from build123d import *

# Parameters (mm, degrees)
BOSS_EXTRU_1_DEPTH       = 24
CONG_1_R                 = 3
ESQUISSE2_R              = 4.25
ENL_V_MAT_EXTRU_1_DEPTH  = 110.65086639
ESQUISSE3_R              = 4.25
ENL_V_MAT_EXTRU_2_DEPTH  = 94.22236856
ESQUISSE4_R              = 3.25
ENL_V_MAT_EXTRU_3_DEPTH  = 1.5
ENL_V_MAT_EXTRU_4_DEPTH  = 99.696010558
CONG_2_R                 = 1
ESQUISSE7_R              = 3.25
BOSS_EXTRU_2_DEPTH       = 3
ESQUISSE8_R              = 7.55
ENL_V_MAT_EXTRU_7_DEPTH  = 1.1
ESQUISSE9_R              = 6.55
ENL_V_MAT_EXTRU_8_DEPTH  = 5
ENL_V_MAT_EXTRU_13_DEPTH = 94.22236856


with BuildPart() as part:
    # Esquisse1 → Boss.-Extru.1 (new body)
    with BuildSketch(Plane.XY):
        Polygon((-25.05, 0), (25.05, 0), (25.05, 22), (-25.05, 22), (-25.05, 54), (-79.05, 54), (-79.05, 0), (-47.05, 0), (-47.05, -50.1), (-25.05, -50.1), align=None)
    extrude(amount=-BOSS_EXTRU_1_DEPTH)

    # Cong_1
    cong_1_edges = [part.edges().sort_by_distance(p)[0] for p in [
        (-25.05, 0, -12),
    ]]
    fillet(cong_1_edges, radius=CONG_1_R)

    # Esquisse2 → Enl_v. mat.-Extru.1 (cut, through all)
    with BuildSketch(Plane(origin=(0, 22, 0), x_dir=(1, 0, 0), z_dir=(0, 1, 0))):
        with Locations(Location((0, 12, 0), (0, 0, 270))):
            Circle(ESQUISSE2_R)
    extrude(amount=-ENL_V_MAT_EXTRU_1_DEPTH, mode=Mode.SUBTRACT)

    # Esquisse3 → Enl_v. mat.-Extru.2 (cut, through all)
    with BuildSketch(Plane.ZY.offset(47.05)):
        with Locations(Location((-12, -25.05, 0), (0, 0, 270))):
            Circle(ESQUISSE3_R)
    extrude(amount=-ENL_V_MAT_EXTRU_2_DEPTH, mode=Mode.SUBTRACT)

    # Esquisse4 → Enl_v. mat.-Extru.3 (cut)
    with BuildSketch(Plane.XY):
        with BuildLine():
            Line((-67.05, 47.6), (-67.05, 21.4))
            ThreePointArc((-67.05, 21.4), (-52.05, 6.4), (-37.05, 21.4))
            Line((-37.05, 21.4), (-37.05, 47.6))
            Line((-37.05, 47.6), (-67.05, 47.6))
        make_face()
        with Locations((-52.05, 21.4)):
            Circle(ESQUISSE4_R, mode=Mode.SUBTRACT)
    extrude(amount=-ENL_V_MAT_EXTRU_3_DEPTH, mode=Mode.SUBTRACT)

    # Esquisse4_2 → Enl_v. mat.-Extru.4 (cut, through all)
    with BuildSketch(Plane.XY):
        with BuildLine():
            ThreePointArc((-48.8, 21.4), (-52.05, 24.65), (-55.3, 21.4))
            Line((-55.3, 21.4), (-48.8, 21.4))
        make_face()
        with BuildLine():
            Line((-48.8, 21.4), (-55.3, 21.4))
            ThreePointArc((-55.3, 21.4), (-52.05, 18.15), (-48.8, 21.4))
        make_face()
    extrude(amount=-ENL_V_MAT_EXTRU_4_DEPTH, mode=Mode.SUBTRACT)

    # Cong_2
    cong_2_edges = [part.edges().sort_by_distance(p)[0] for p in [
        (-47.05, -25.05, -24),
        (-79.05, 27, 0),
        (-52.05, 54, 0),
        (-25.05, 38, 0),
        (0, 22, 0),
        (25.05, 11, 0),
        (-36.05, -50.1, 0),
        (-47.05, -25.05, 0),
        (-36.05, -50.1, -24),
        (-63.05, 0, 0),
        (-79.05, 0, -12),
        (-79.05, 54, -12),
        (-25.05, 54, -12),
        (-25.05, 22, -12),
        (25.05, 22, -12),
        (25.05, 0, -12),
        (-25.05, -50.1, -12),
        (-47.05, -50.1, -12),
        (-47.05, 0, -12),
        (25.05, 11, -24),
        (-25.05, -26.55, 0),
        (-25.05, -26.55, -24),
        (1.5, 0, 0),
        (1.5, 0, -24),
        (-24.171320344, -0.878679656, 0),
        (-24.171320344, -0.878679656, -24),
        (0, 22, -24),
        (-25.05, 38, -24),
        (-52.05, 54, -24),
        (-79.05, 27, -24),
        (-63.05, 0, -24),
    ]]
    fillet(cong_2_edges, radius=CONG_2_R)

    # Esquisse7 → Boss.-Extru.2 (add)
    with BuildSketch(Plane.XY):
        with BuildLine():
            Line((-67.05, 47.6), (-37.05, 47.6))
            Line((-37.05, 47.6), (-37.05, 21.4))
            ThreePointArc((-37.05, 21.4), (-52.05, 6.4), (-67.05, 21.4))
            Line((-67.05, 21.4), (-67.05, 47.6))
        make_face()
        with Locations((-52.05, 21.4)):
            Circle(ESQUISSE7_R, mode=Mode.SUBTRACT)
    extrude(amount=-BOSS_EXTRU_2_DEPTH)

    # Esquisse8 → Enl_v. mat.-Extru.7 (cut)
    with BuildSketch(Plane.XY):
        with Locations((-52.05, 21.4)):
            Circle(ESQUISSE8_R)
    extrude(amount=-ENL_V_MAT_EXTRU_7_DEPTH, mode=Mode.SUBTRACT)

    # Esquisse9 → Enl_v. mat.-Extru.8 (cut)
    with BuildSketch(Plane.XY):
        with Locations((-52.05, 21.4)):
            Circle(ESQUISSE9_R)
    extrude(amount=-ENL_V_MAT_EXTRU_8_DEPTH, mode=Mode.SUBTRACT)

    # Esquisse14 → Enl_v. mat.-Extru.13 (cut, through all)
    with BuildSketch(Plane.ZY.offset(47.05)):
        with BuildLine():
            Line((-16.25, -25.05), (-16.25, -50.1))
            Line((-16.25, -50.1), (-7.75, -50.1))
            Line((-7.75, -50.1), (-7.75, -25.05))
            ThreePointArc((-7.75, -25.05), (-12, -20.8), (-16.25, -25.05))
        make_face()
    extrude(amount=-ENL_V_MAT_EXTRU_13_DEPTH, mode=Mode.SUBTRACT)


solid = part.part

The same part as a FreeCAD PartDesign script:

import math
import FreeCAD as App
import Part
import Sketcher


def edges_at(feature, points):
    """Names of the edges that pass closest to the given points."""
    edges = feature.Shape.Edges
    near = lambda p: min(range(len(edges)), key=lambda i: edges[i].distToShape(Part.Vertex(*p))[0])
    return sorted({f"Edge{near(p) + 1}" for p in points})

doc = App.newDocument("Part")
body = doc.addObject("PartDesign::Body", "Body")

# Sketch on XY plane
sketch1 = doc.addObject("Sketcher::SketchObject", "Sketch")
body.addObject(sketch1)
sketch1.AttachmentSupport = (doc.XY_Plane, [""])
sketch1.MapMode = "FlatFace"
sketch1.addGeometry([
    Part.LineSegment(App.Vector(-25, 0, 0), App.Vector(25, 0, 0)),  # 0
    Part.LineSegment(App.Vector(25, 0, 0), App.Vector(25, 22, 0)),  # 1
    Part.LineSegment(App.Vector(25, 22, 0), App.Vector(-25, 22, 0)),  # 2
    Part.LineSegment(App.Vector(-25, 22, 0), App.Vector(-25, 54, 0)),  # 3
    Part.LineSegment(App.Vector(-25, 54, 0), App.Vector(-79, 54, 0)),  # 4
    Part.LineSegment(App.Vector(-79, 54, 0), App.Vector(-79, 0, 0)),  # 5
    Part.LineSegment(App.Vector(-79, 0, 0), App.Vector(-47, 0, 0)),  # 6
    Part.LineSegment(App.Vector(-47, 0, 0), App.Vector(-47, -50, 0)),  # 7
    Part.LineSegment(App.Vector(-47, -50, 0), App.Vector(-25, -50, 0)),  # 8
    Part.LineSegment(App.Vector(-25, -50, 0), App.Vector(-25, 0, 0)),  # 9
], False)
sketch1.addConstraint([
    Sketcher.Constraint("Coincident", 0, 2, 1, 1),
    Sketcher.Constraint("Coincident", 1, 2, 2, 1),
    Sketcher.Constraint("Coincident", 2, 2, 3, 1),
    Sketcher.Constraint("Coincident", 3, 2, 4, 1),
    Sketcher.Constraint("Coincident", 4, 2, 5, 1),
    Sketcher.Constraint("Coincident", 5, 2, 6, 1),
    Sketcher.Constraint("Coincident", 6, 2, 7, 1),
    Sketcher.Constraint("Coincident", 7, 2, 8, 1),
    Sketcher.Constraint("Coincident", 8, 2, 9, 1),
    Sketcher.Constraint("Coincident", 9, 2, 0, 1),
    Sketcher.Constraint("Horizontal", 0),
    Sketcher.Constraint("Vertical", 1),
    Sketcher.Constraint("Horizontal", 2),
    Sketcher.Constraint("Vertical", 3),
    Sketcher.Constraint("Horizontal", 4),
    Sketcher.Constraint("Vertical", 5),
    Sketcher.Constraint("Horizontal", 6),
    Sketcher.Constraint("Vertical", 7),
    Sketcher.Constraint("Horizontal", 8),
    Sketcher.Constraint("Vertical", 9),
    Sketcher.Constraint("Symmetric", 0, 2, 9, 2, -1, 1),
    Sketcher.Constraint("PointOnObject", 5, 2, -1),
    Sketcher.Constraint("Vertical", 3, 2, 8, 2),
    Sketcher.Constraint("Equal", 8, 1),
    Sketcher.Constraint("Equal", 6, 3),
    Sketcher.Constraint("Equal", 2, 7),
    Sketcher.Constraint("DistanceX", 4, 2, 4, 1, 54.0),
    Sketcher.Constraint("DistanceX", 6, 1, 6, 2, 32.0),
    Sketcher.Constraint("DistanceX", 0, 1, 0, 2, 50.1),
])
pad1 = doc.addObject("PartDesign::Pad", "Pad")
body.addObject(pad1)
pad1.Profile = sketch1
pad1.Length = 24
pad1.Reversed = True
doc.recompute()

fillet = doc.addObject("PartDesign::Fillet", "Fillet")
body.addObject(fillet)
fillet.Base = (pad1, edges_at(pad1, [(-25.05, 0, -12)]))
fillet.Radius = 3

# Sketch on XZ plane
sketch2 = doc.addObject("Sketcher::SketchObject", "Sketch001")
body.addObject(sketch2)
sketch2.AttachmentSupport = (doc.XZ_Plane, [""])
sketch2.MapMode = "FlatFace"
sketch2.AttachmentOffset = App.Placement(App.Vector(0, 0, -22), App.Rotation())
sketch2.addGeometry(Part.Circle(App.Vector(0, -12, 0), App.Vector(0, 0, 1), 4.2), False)
sketch2.addConstraint([
    Sketcher.Constraint("PointOnObject", 0, 3, -2),
    Sketcher.Constraint("Diameter", 0, 8.5),
    Sketcher.Constraint("DistanceY", 0, 3, -1, 1, 12.0),
])
pocket1 = doc.addObject("PartDesign::Pocket", "Pocket")
body.addObject(pocket1)
pocket1.Profile = sketch2
pocket1.Type = "ThroughAll"
pocket1.Reversed = True

# Sketch on YZ plane
sketch3 = doc.addObject("Sketcher::SketchObject", "Sketch002")
body.addObject(sketch3)
sketch3.AttachmentSupport = (doc.YZ_Plane, [""])
sketch3.MapMode = "FlatFace"
sketch3.AttachmentOffset = App.Placement(App.Vector(0, 0, -47.05), App.Rotation())
sketch3.addGeometry(Part.Circle(App.Vector(-25.1, -12, 0), App.Vector(0, 0, 1), 4.2), False)
sketch3.addConstraint([
    Sketcher.Constraint("Diameter", 0, 8.5),
    Sketcher.Constraint("DistanceY", 0, 3, -1, 1, 12.0),
    Sketcher.Constraint("DistanceX", 0, 3, -1, 1, 25.05),
])
pocket2 = doc.addObject("PartDesign::Pocket", "Pocket001")
body.addObject(pocket2)
pocket2.Profile = sketch3
pocket2.Type = "ThroughAll"
pocket2.Reversed = True

# Sketch on XY plane
sketch4 = doc.addObject("Sketcher::SketchObject", "Sketch003")
body.addObject(sketch4)
sketch4.AttachmentSupport = (doc.XY_Plane, [""])
sketch4.MapMode = "FlatFace"
sketch4.addGeometry([
    Part.LineSegment(App.Vector(-67, 47.6, 0), App.Vector(-67, 21.4, 0)),  # 0
    Part.ArcOfCircle(Part.Circle(App.Vector(-52, 21.4, 0), App.Vector(0, 0, 1), 15), math.radians(180), math.radians(360)),  # 1
    Part.LineSegment(App.Vector(-37, 21.4, 0), App.Vector(-37, 47.6, 0)),  # 2
    Part.LineSegment(App.Vector(-37, 47.6, 0), App.Vector(-67, 47.6, 0)),  # 3
    Part.Circle(App.Vector(-52, 21.4, 0), App.Vector(0, 0, 1), 3.2),  # 4
], False)
sketch4.addConstraint([
    Sketcher.Constraint("Tangent", 0, 2, 1, 1),
    Sketcher.Constraint("Tangent", 1, 2, 2, 1),
    Sketcher.Constraint("Coincident", 2, 2, 3, 1),
    Sketcher.Constraint("Coincident", 3, 2, 0, 1),
    Sketcher.Constraint("Vertical", 0),
    Sketcher.Constraint("Vertical", 2),
    Sketcher.Constraint("Horizontal", 3),
    Sketcher.Constraint("Coincident", 4, 3, 1, 3),
    Sketcher.Constraint("Radius", 1, 15.0),
    Sketcher.Constraint("Diameter", 4, 6.5),
    Sketcher.Constraint("DistanceY", 0, 2, 0, 1, 26.2),
    Sketcher.Constraint("DistanceY", -1, 1, 1, 3, 21.4),
    Sketcher.Constraint("DistanceX", 1, 3, -1, 1, 52.05),
])
pocket3 = doc.addObject("PartDesign::Pocket", "Pocket002")
body.addObject(pocket3)
pocket3.Profile = sketch4
pocket3.Length = 1.5

# Sketch on XY plane
sketch5 = doc.addObject("Sketcher::SketchObject", "Sketch004")
body.addObject(sketch5)
sketch5.AttachmentSupport = (doc.XY_Plane, [""])
sketch5.MapMode = "FlatFace"
sketch5.addGeometry(Part.Circle(App.Vector(-52, 21.4, 0), App.Vector(0, 0, 1), 3.2), False)
sketch5.addConstraint([
    Sketcher.Constraint("Diameter", 0, 6.5),
    Sketcher.Constraint("DistanceY", -1, 1, 0, 3, 21.4),
    Sketcher.Constraint("DistanceX", 0, 3, -1, 1, 52.05),
])
pocket4 = doc.addObject("PartDesign::Pocket", "Pocket003")
body.addObject(pocket4)
pocket4.Profile = sketch5
pocket4.Type = "ThroughAll"
doc.recompute()

fillet2 = doc.addObject("PartDesign::Fillet", "Fillet001")
body.addObject(fillet2)
fillet2.Base = (pocket4, edges_at(pocket4, [
    (-47.05, -25.05, -24),
    (-79.05, 27, 0),
    (-52.05, 54, 0),
    (-25.05, 38, 0),
    (0, 22, 0),
    (25.05, 11, 0),
    (-36.05, -50.1, 0),
    (-47.05, -25.05, 0),
    (-36.05, -50.1, -24),
    (-63.05, 0, 0),
    (-79.05, 0, -12),
    (-79.05, 54, -12),
    (-25.05, 54, -12),
    (-25.05, 22, -12),
    (25.05, 22, -12),
    (25.05, 0, -12),
    (-25.05, -50.1, -12),
    (-47.05, -50.1, -12),
    (-47.05, 0, -12),
    (25.05, 11, -24),
    (-25.05, -26.55, 0),
    (-25.05, -26.55, -24),
    (1.5, 0, 0),
    (1.5, 0, -24),
    (-24.171, -0.879, 0),
    (-24.171, -0.879, -24),
    (0, 22, -24),
    (-25.05, 38, -24),
    (-52.05, 54, -24),
    (-79.05, 27, -24),
    (-63.05, 0, -24),
]))
fillet2.Radius = 1

# Sketch on XY plane
sketch6 = doc.addObject("Sketcher::SketchObject", "Sketch005")
body.addObject(sketch6)
sketch6.AttachmentSupport = (doc.XY_Plane, [""])
sketch6.MapMode = "FlatFace"
sketch6.addGeometry([
    Part.LineSegment(App.Vector(-37, 47.6, 0), App.Vector(-67, 47.6, 0)),  # 0
    Part.LineSegment(App.Vector(-67, 47.6, 0), App.Vector(-67, 21.4, 0)),  # 1
    Part.ArcOfCircle(Part.Circle(App.Vector(-52, 21.4, 0), App.Vector(0, 0, 1), 15), math.radians(180), math.radians(360)),  # 2
    Part.LineSegment(App.Vector(-37, 21.4, 0), App.Vector(-37, 47.6, 0)),  # 3
    Part.Circle(App.Vector(-52, 21.4, 0), App.Vector(0, 0, 1), 3.2),  # 4
], False)
sketch6.addConstraint([
    Sketcher.Constraint("Coincident", 0, 2, 1, 1),
    Sketcher.Constraint("Tangent", 1, 2, 2, 1),
    Sketcher.Constraint("Tangent", 2, 2, 3, 1),
    Sketcher.Constraint("Coincident", 3, 2, 0, 1),
    Sketcher.Constraint("Horizontal", 0),
    Sketcher.Constraint("Vertical", 1),
    Sketcher.Constraint("Vertical", 3),
    Sketcher.Constraint("Coincident", 4, 3, 2, 3),
    Sketcher.Constraint("Radius", 2, 15.0),
    Sketcher.Constraint("Diameter", 4, 6.5),
    Sketcher.Constraint("DistanceY", 1, 2, 1, 1, 26.2),
    Sketcher.Constraint("DistanceY", -1, 1, 2, 3, 21.4),
    Sketcher.Constraint("DistanceX", 2, 3, -1, 1, 52.05),
])
pad2 = doc.addObject("PartDesign::Pad", "Pad001")
body.addObject(pad2)
pad2.Profile = sketch6
pad2.Length = 3
pad2.Reversed = True

# Sketch on XY plane
sketch7 = doc.addObject("Sketcher::SketchObject", "Sketch006")
body.addObject(sketch7)
sketch7.AttachmentSupport = (doc.XY_Plane, [""])
sketch7.MapMode = "FlatFace"
sketch7.addGeometry(Part.Circle(App.Vector(-52, 21, 0), App.Vector(0, 0, 1), 8), False)
sketch7.addConstraint([
    Sketcher.Constraint("Diameter", 0, 15.1),
    Sketcher.Constraint("DistanceY", -1, 1, 0, 3, 21.4),
    Sketcher.Constraint("DistanceX", 0, 3, -1, 1, 52.05),
])
pocket5 = doc.addObject("PartDesign::Pocket", "Pocket004")
body.addObject(pocket5)
pocket5.Profile = sketch7
pocket5.Length = 1.1

# Sketch on XY plane
sketch8 = doc.addObject("Sketcher::SketchObject", "Sketch007")
body.addObject(sketch8)
sketch8.AttachmentSupport = (doc.XY_Plane, [""])
sketch8.MapMode = "FlatFace"
sketch8.addGeometry(Part.Circle(App.Vector(-52, 21, 0), App.Vector(0, 0, 1), 7), False)
sketch8.addConstraint([
    Sketcher.Constraint("Diameter", 0, 13.1),
    Sketcher.Constraint("DistanceY", -1, 1, 0, 3, 21.4),
    Sketcher.Constraint("DistanceX", 0, 3, -1, 1, 52.05),
])
pocket6 = doc.addObject("PartDesign::Pocket", "Pocket005")
body.addObject(pocket6)
pocket6.Profile = sketch8
pocket6.Length = 5

# Sketch on YZ plane
sketch9 = doc.addObject("Sketcher::SketchObject", "Sketch008")
body.addObject(sketch9)
sketch9.AttachmentSupport = (doc.YZ_Plane, [""])
sketch9.MapMode = "FlatFace"
sketch9.AttachmentOffset = App.Placement(App.Vector(0, 0, -47.05), App.Rotation())
sketch9.addGeometry([
    Part.LineSegment(App.Vector(-25.1, -16.2, 0), App.Vector(-50.1, -16.2, 0)),
    Part.LineSegment(App.Vector(-50.1, -16.2, 0), App.Vector(-50.1, -7.8, 0)),
    Part.LineSegment(App.Vector(-50.1, -7.8, 0), App.Vector(-25.1, -7.8, 0)),
    Part.ArcOfCircle(Part.Circle(App.Vector(-25.1, -12, 0), App.Vector(0, 0, 1), 4.2), math.radians(-90), math.radians(90)),
], False)
sketch9.addConstraint([
    Sketcher.Constraint("Coincident", 0, 2, 1, 1),
    Sketcher.Constraint("Coincident", 1, 2, 2, 1),
    Sketcher.Constraint("Tangent", 2, 2, 3, 2),
    Sketcher.Constraint("Tangent", 3, 1, 0, 1),
    Sketcher.Constraint("Horizontal", 0),
    Sketcher.Constraint("Vertical", 1),
    Sketcher.Constraint("Horizontal", 2),
    Sketcher.Constraint("Radius", 3, 4.25),
    Sketcher.Constraint("DistanceY", 3, 3, -1, 1, 12.0),
    Sketcher.Constraint("DistanceX", 0, 2, 0, 1, 25.05),
    Sketcher.Constraint("DistanceX", 0, 2, -1, 1, 50.1),
])
pocket7 = doc.addObject("PartDesign::Pocket", "Pocket006")
body.addObject(pocket7)
pocket7.Profile = sketch9
pocket7.Type = "ThroughAll"
pocket7.Reversed = True

doc.recompute()
